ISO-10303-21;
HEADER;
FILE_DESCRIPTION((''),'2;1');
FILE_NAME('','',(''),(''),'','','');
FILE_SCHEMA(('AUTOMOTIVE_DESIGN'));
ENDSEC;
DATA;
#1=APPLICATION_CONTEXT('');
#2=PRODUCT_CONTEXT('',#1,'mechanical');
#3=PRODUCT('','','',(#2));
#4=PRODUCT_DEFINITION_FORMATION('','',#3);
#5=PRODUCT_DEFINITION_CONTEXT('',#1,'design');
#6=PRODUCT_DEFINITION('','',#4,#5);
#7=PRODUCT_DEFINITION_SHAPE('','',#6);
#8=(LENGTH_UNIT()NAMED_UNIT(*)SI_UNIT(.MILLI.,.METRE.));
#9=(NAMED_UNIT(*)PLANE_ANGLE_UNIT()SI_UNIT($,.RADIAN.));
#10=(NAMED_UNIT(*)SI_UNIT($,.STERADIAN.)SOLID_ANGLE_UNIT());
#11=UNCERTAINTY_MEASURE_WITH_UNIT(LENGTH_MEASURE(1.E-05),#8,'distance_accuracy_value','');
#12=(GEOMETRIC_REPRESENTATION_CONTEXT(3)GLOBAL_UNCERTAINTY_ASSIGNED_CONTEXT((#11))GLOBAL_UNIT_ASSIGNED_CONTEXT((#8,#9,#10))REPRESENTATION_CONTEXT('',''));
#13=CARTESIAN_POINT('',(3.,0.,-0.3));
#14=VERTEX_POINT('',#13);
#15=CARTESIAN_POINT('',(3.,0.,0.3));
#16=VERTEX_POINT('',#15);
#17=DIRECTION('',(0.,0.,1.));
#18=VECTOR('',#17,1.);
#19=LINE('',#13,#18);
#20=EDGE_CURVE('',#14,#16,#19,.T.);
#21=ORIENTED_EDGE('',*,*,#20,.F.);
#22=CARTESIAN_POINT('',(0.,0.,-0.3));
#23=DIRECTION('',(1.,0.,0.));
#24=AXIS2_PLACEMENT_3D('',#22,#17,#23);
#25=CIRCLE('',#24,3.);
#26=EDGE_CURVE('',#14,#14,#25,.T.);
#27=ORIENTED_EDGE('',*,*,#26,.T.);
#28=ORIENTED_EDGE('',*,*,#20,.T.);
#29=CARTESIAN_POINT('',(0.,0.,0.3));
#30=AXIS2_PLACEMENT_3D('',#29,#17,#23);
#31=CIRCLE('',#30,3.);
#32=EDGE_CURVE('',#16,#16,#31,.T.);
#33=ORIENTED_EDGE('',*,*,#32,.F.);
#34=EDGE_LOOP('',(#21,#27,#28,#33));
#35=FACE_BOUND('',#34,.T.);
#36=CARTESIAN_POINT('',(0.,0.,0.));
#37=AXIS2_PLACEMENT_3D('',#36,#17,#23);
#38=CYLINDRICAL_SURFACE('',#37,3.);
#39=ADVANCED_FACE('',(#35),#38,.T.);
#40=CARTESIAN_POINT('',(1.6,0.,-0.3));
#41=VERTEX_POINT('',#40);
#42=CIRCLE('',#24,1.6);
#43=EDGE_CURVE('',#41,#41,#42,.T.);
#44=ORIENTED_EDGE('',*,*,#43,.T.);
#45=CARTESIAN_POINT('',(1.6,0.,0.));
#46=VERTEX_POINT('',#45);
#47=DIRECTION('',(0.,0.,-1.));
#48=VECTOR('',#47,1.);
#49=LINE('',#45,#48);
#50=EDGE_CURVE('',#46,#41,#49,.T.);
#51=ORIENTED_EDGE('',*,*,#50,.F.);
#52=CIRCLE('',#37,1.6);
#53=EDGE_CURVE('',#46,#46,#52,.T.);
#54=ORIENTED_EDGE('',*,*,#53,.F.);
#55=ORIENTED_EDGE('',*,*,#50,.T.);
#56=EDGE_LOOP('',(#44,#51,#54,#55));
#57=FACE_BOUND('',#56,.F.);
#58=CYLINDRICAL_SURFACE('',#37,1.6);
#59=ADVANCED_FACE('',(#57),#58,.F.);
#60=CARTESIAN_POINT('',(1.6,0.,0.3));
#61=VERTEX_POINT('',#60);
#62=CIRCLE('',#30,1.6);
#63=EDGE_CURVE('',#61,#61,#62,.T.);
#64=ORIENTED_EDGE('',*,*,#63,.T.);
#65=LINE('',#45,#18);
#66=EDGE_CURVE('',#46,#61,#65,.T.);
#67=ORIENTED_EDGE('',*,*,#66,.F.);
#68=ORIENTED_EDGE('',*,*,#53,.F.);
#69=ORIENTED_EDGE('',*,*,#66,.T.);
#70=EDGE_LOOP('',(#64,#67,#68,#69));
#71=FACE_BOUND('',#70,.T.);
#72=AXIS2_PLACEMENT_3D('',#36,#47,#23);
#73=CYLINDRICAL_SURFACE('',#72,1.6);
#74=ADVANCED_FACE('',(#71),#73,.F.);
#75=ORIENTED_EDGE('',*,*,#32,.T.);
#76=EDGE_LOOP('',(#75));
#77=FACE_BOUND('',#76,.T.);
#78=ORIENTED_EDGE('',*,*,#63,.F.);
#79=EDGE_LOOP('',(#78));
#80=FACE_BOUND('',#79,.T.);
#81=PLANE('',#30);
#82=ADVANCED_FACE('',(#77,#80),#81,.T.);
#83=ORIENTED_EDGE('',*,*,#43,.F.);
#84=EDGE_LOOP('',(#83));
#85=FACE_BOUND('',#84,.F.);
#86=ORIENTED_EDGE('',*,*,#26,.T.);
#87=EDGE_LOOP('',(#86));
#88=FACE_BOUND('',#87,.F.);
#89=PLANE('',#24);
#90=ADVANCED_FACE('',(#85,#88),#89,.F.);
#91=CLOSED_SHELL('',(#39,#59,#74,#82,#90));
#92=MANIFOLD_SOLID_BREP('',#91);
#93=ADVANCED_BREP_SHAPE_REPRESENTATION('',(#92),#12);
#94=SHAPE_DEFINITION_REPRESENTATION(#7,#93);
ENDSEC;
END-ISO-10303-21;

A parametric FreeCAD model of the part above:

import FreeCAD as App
import Part
import Sketcher

doc = App.newDocument("Part")
body = doc.addObject("PartDesign::Body", "Body")

# Sketch on XY plane
sketch1 = doc.addObject("Sketcher::SketchObject", "Sketch")
body.addObject(sketch1)
sketch1.AttachmentSupport = (doc.XY_Plane, [""])
sketch1.MapMode = "FlatFace"
sketch1.addGeometry([
    Part.Circle(App.Vector(0, 0, 0), App.Vector(0, 0, 1), 3),
    Part.Circle(App.Vector(0, 0, 0), App.Vector(0, 0, 1), 1.6),
], False)
sketch1.addConstraint([
    Sketcher.Constraint("Coincident", 0, 3, -1, 1),
    Sketcher.Constraint("Coincident", 1, 3, -1, 1),
    Sketcher.Constraint("Diameter", 0, 6.0),
    Sketcher.Constraint("Diameter", 1, 3.2),
])
pad1 = doc.addObject("PartDesign::Pad", "Pad")
body.addObject(pad1)
pad1.Profile = sketch1
pad1.Type = "TwoLengths"
pad1.Length = 0.3
pad1.Length2 = 0.3

doc.recompute()
